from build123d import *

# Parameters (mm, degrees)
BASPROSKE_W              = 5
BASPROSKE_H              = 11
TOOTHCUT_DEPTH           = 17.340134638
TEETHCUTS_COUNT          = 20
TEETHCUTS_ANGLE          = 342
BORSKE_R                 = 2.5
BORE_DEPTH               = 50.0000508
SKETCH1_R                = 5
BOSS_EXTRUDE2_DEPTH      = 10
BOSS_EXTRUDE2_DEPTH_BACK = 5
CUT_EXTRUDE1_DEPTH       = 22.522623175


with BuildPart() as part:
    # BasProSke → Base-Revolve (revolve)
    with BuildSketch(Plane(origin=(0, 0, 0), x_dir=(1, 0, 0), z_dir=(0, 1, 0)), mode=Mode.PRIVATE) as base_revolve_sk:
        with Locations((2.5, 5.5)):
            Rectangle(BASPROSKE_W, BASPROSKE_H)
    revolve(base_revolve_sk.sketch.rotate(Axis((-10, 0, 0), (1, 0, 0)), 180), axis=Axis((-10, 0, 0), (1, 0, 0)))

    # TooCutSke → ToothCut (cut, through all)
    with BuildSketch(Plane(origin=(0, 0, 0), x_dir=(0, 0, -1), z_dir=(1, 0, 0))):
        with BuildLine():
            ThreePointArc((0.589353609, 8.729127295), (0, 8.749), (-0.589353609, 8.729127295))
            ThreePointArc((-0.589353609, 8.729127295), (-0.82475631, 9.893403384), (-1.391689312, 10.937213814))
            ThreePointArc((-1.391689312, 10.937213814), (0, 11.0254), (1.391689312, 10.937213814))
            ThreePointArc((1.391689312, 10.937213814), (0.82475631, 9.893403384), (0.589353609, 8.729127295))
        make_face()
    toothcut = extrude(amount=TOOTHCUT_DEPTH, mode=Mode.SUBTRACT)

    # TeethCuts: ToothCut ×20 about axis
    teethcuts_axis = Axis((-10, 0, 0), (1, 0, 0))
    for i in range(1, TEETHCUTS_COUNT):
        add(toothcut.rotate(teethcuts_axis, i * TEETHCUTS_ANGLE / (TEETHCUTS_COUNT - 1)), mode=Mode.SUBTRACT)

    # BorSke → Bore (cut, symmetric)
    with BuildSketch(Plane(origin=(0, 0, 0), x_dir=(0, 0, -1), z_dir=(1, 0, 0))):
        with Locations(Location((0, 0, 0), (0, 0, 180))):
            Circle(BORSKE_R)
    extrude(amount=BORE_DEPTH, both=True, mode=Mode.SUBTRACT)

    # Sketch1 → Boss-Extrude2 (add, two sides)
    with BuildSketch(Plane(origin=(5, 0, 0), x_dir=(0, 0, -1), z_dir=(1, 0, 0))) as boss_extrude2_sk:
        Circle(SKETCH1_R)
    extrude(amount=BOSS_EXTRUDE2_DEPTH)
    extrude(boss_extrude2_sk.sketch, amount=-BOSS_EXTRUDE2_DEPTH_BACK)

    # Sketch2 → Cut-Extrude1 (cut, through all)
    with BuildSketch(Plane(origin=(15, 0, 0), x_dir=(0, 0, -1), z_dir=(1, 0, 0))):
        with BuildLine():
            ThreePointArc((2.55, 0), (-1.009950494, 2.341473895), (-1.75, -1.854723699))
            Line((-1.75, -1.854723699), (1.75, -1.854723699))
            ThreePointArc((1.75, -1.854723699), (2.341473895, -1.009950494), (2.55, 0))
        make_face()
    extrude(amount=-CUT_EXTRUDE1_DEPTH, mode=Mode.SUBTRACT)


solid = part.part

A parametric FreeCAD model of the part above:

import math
import FreeCAD as App
import Part
import Sketcher
from FreeCAD import Vector
Q = App.Units.Quantity


def add_polygon(sketch, points):
    """Adds a closed chain of lines whose ends are joined by coincident constraints."""
    first, n = sketch.GeometryCount, len(points)
    for a, b in zip(points, points[1:] + points[:1]):
        sketch.addGeometry(Part.LineSegment(App.Vector(*a, 0), App.Vector(*b, 0)), False)
    for i in range(n):
        sketch.addConstraint(Sketcher.Constraint("Coincident", first + i, 2, first + (i + 1) % n, 1))

doc = App.newDocument("Part")
body = doc.addObject("PartDesign::Body", "Body")

sketch1 = doc.addObject("Sketcher::SketchObject", "Sketch")
body.addObject(sketch1)
sketch1.AttachmentSupport = (doc.XZ_Plane, [""])
sketch1.MapMode = "FlatFace"
add_polygon(sketch1, [(0, -11), (0, 0), (5, 0), (5, -11)])
sketch1.addConstraint(Sketcher.Constraint("Vertical", 0))
sketch1.addConstraint(Sketcher.Constraint("Horizontal", 1))
sketch1.addConstraint(Sketcher.Constraint("Vertical", 2))
sketch1.addConstraint(Sketcher.Constraint("Horizontal", 3))
sketch1.addConstraint(Sketcher.Constraint("Coincident", 0, 2, -1, 1))
sketch1.addConstraint(Sketcher.Constraint("DistanceX", 1, 1, 1, 2, Q("5 mm")))
sketch1.addConstraint(Sketcher.Constraint("DistanceY", 0, 1, 0, 2, Q("11 mm")))
revolution = doc.addObject("PartDesign::Revolution", "Revolution")
body.addObject(revolution)
revolution.Profile = sketch1
revolution.ReferenceAxis = (sketch1, ["H_Axis"])
revolution.Angle = 360

sketch2 = doc.addObject("Sketcher::SketchObject", "Sketch001")
body.addObject(sketch2)
sketch2.AttachmentSupport = (doc.YZ_Plane, [""])
sketch2.MapMode = "FlatFace"
sketch2.addGeometry(Part.ArcOfCircle(Part.Circle(Vector(0, 0, 0), Vector(0, 0, 1), 8.749), math.radians(-3.862506), math.radians(3.862506)), False)
sketch2.addGeometry(Part.ArcOfCircle(Part.Circle(Vector(8.527341, -4.584261, 0), Vector(0, 0, 1), 4), math.radians(52.95312), math.radians(87.108393)), False)
sketch2.addGeometry(Part.ArcOfCircle(Part.Circle(Vector(0, 0, 0), Vector(0, 0, 1), 11.0254), math.radians(-7.251546), math.radians(7.251546)), False)
sketch2.addGeometry(Part.ArcOfCircle(Part.Circle(Vector(8.527341, 4.584261, 0), Vector(0, 0, 1), 4), math.radians(-87.108393), math.radians(-52.95312)), False)
sketch2.addConstraint(Sketcher.Constraint("Coincident", 0, 1, 1, 2))
sketch2.addConstraint(Sketcher.Constraint("Coincident", 1, 1, 2, 1))
sketch2.addConstraint(Sketcher.Constraint("Coincident", 2, 2, 3, 2))
sketch2.addConstraint(Sketcher.Constraint("Coincident", 3, 1, 0, 2))
sketch2.addConstraint(Sketcher.Constraint("Coincident", 0, 3, -1, 1))
sketch2.addConstraint(Sketcher.Constraint("Coincident", 2, 3, -1, 1))
sketch2.addConstraint(Sketcher.Constraint("Equal", 1, 3))
sketch2.addConstraint(Sketcher.Constraint("Symmetric", 1, 3, 3, 3, -1))
sketch2.addConstraint(Sketcher.Constraint("Radius", 1, Q("4 mm")))
sketch2.addConstraint(Sketcher.Constraint("Radius", 0, Q("8.749 mm")))
sketch2.addConstraint(Sketcher.Constraint("Radius", 2, Q("11.0254 mm")))
sketch2.addConstraint(Sketcher.Constraint("DistanceX", -1, 1, 1, 3, Q("8.527341 mm")))
sketch2.addConstraint(Sketcher.Constraint("DistanceY", 1, 3, -1, 1, Q("4.584261 mm")))
pocket1 = doc.addObject("PartDesign::Pocket", "Pocket")
body.addObject(pocket1)
pocket1.Profile = sketch2
pocket1.Type = "ThroughAll"
pocket1.Reversed = True
doc.recompute()

polarpattern = doc.addObject("PartDesign::PolarPattern", "PolarPattern")
body.addObject(polarpattern)
polarpattern.Originals = [pocket1]
polarpattern.Axis = (doc.X_Axis, [""])
polarpattern.Angle = 360
polarpattern.Occurrences = 20
body.Tip = polarpattern

sketch3 = doc.addObject("Sketcher::SketchObject", "Sketch002")
body.addObject(sketch3)
sketch3.AttachmentSupport = (doc.YZ_Plane, [""])
sketch3.MapMode = "FlatFace"
sketch3.addGeometry(Part.Circle(Vector(0, 0, 0), Vector(0, 0, 1), 2.5), False)
sketch3.addConstraint(Sketcher.Constraint("Coincident", 0, 3, -1, 1))
sketch3.addConstraint(Sketcher.Constraint("Diameter", 0, Q("5 mm")))
pocket2 = doc.addObject("PartDesign::Pocket", "Pocket001")
body.addObject(pocket2)
pocket2.Profile = sketch3
pocket2.Length = 100.000102
pocket2.Midplane = True

sketch4 = doc.addObject("Sketcher::SketchObject", "Sketch003")
body.addObject(sketch4)
sketch4.AttachmentSupport = (doc.YZ_Plane, [""])
sketch4.MapMode = "FlatFace"
sketch4.AttachmentOffset = App.Placement(Vector(0, 0, 5), App.Rotation())
sketch4.addGeometry(Part.Circle(Vector(0, 0, 0), Vector(0, 0, 1), 5), False)
sketch4.addConstraint(Sketcher.Constraint("Coincident", 0, 3, -1, 1))
sketch4.addConstraint(Sketcher.Constraint("Diameter", 0, Q("10 mm")))
pad1 = doc.addObject("PartDesign::Pad", "Pad")
body.addObject(pad1)
pad1.Profile = sketch4
pad1.Type = "TwoLengths"
pad1.Length = 10
pad1.Length2 = 5

sketch5 = doc.addObject("Sketcher::SketchObject", "Sketch004")
body.addObject(sketch5)
sketch5.AttachmentSupport = (doc.YZ_Plane, [""])
sketch5.MapMode = "FlatFace"
sketch5.AttachmentOffset = App.Placement(Vector(0, 0, 15), App.Rotation())
sketch5.addGeometry(Part.ArcOfCircle(Part.Circle(Vector(0, 0, 0), Vector(0, 0, 1), 2.55), math.radians(-90), math.radians(136.664077)), False)
sketch5.addGeometry(Part.LineSegment(Vector(-1.854724, 1.75, 0), Vector(-1.854724, -1.75, 0)), False)
sketch5.addGeometry(Part.ArcOfCircle(Part.Circle(Vector(0, 0, 0), Vector(0, 0, 1), 2.55), math.radians(-136.664077), math.radians(-90)), False)
sketch5.addConstraint(Sketcher.Constraint("Coincident", 0, 2, 1, 1))
sketch5.addConstraint(Sketcher.Constraint("Coincident", 1, 2, 2, 1))
sketch5.addConstraint(Sketcher.Constraint("Tangent", 2, 2, 0, 1))
sketch5.addConstraint(Sketcher.Constraint("Vertical", 1))
sketch5.addConstraint(Sketcher.Constraint("Coincident", 0, 3, -1, 1))
sketch5.addConstraint(Sketcher.Constraint("Equal", 0, 2))
sketch5.addConstraint(Sketcher.Constraint("PointOnObject", 2, 2, -2))
sketch5.addConstraint(Sketcher.Constraint("Radius", 0, Q("2.55 mm")))
sketch5.addConstraint(Sketcher.Constraint("DistanceY", 1, 2, 1, 1, Q("3.5 mm")))
pocket3 = doc.addObject("PartDesign::Pocket", "Pocket002")
body.addObject(pocket3)
pocket3.Profile = sketch5
pocket3.Type = "ThroughAll"

doc.recompute()
